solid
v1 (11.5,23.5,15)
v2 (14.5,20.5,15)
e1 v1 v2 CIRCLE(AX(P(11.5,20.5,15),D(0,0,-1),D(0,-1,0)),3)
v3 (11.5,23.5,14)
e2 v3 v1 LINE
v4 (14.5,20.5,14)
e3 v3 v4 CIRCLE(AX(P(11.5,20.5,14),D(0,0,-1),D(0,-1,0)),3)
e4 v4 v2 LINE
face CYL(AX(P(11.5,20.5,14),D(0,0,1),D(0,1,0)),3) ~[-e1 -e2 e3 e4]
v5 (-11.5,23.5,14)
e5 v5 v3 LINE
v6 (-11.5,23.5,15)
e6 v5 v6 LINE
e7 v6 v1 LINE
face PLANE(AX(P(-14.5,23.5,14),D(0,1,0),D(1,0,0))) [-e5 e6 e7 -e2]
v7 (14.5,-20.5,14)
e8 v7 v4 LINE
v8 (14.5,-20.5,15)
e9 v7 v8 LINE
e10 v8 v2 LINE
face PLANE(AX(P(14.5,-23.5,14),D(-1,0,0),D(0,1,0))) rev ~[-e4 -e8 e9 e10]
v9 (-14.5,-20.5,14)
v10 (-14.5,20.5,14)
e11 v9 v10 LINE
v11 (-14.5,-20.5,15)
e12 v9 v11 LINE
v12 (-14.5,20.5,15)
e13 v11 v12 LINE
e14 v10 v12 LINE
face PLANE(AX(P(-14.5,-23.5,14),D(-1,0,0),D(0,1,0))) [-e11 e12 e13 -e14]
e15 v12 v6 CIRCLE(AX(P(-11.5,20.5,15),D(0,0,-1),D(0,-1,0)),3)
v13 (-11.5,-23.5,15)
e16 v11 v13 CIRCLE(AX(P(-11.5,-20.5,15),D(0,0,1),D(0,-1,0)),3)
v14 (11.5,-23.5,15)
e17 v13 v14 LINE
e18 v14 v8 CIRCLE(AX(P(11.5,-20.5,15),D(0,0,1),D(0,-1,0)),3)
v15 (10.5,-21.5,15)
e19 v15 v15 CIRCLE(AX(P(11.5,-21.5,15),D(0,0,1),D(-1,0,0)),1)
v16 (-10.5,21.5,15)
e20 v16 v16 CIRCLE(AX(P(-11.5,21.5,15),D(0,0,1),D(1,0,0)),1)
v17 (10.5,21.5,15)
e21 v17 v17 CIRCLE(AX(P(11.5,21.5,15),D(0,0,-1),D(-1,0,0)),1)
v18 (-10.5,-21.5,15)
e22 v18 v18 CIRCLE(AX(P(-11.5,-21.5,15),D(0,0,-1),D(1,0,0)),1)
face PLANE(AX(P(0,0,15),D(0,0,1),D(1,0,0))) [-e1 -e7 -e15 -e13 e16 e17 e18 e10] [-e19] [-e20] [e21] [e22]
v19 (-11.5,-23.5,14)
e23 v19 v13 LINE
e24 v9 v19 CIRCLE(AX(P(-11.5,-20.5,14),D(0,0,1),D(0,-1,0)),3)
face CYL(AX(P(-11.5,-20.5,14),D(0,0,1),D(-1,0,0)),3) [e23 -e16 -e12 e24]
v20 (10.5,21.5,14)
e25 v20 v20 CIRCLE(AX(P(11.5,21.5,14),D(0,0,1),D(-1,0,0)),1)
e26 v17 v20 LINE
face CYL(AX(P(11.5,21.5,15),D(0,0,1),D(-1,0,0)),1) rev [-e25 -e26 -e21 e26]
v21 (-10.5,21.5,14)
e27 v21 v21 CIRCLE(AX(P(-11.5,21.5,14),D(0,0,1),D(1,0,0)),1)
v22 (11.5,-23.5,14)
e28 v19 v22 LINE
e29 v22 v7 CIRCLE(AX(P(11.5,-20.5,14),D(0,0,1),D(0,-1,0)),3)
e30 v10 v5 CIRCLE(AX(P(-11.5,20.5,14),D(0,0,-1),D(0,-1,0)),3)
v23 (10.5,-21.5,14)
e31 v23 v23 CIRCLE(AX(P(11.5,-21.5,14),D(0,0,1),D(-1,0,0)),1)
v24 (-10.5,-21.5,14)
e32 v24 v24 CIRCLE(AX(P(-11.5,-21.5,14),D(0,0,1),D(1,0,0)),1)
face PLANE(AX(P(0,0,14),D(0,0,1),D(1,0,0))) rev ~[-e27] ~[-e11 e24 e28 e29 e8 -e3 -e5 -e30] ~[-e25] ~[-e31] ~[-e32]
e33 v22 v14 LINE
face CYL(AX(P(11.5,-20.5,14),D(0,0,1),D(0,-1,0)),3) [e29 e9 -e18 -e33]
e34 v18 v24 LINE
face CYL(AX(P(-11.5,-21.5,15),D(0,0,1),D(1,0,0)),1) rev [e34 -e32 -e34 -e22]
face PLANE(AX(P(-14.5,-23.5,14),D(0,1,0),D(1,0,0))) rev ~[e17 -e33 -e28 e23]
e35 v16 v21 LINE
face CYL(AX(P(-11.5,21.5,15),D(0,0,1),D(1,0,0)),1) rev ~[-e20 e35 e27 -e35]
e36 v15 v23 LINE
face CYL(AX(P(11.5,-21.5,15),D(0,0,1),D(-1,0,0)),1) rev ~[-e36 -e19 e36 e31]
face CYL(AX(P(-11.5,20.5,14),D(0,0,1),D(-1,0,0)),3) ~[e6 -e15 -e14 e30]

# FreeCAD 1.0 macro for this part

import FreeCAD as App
import Part
import Sketcher

V = App.Vector
Q = App.Units.Quantity


def edges_at(feature, points):
    """Names of the edges that pass closest to the given points."""
    edges = feature.Shape.Edges
    near = lambda p: min(range(len(edges)), key=lambda i: edges[i].distToShape(Part.Vertex(*p))[0])
    return sorted({f"Edge{near(p) + 1}" for p in points})

doc = App.newDocument("Part")
body = doc.addObject("PartDesign::Body", "Body")

# Sketch on XY plane
sketch1 = body.newObject("Sketcher::SketchObject", "Sketch")
sketch1.AttachmentSupport = (doc.getObject("XY_Plane"), [""])
sketch1.MapMode = "FlatFace"
sketch1.addGeometry(Part.LineSegment(V(-14, 24, 0), V(-14, -24, 0)), False)
sketch1.addGeometry(Part.LineSegment(V(-14, -24, 0), V(14, -24, 0)), False)
sketch1.addGeometry(Part.LineSegment(V(14, -24, 0), V(14, 24, 0)), False)
sketch1.addGeometry(Part.LineSegment(V(14, 24, 0), V(-14, 24, 0)), False)
sketch1.addConstraint(Sketcher.Constraint("Coincident", 0, 2, 1, 1))
sketch1.addConstraint(Sketcher.Constraint("Coincident", 1, 2, 2, 1))
sketch1.addConstraint(Sketcher.Constraint("Coincident", 2, 2, 3, 1))
sketch1.addConstraint(Sketcher.Constraint("Coincident", 3, 2, 0, 1))
sketch1.addConstraint(Sketcher.Constraint("Vertical", 0))
sketch1.addConstraint(Sketcher.Constraint("Horizontal", 1))
sketch1.addConstraint(Sketcher.Constraint("Vertical", 2))
sketch1.addConstraint(Sketcher.Constraint("Horizontal", 3))
sketch1.addConstraint(Sketcher.Constraint("Symmetric", 0, 2, 2, 2, -1, 1))
sketch1.addConstraint(Sketcher.Constraint("DistanceX", 1, 1, 1, 2, Q("29 mm")))
sketch1.addConstraint(Sketcher.Constraint("DistanceY", 0, 2, 0, 1, Q("47 mm")))
pad1 = body.newObject("PartDesign::Pad", "Pad")
pad1.Profile = sketch1
pad1.Length = 1

# Sketch on XY plane
sketch2 = body.newObject("Sketcher::SketchObject", "Sketch001")
sketch2.AttachmentSupport = (doc.getObject("XY_Plane"), [""])
sketch2.MapMode = "FlatFace"
sketch2.AttachmentOffset = App.Placement(V(0, 0, 1), App.Rotation())
sketch2.addGeometry(Part.Circle(V(-11.5, 21.5, 0), V(0, 0, 1), 1), False)
sketch2.addConstraint(Sketcher.Constraint("Diameter", 0, Q("2 mm")))
sketch2.addConstraint(Sketcher.Constraint("DistanceX", 0, 3, -1, 1, Q("11.5 mm")))
sketch2.addConstraint(Sketcher.Constraint("DistanceY", -1, 1, 0, 3, Q("21.5 mm")))
pocket1 = body.newObject("PartDesign::Pocket", "Pocket")
pocket1.Profile = sketch2
pocket1.Type = "ThroughAll"

# Sketch on XY plane
sketch3 = body.newObject("Sketcher::SketchObject", "Sketch002")
sketch3.AttachmentSupport = (doc.getObject("XY_Plane"), [""])
sketch3.MapMode = "FlatFace"
sketch3.AttachmentOffset = App.Placement(V(0, 0, 1), App.Rotation())
sketch3.addGeometry(Part.Circle(V(11.5, 21.5, 0), V(0, 0, 1), 1), False)
sketch3.addConstraint(Sketcher.Constraint("Diameter", 0, Q("2 mm")))
sketch3.addConstraint(Sketcher.Constraint("DistanceX", -1, 1, 0, 3, Q("11.5 mm")))
sketch3.addConstraint(Sketcher.Constraint("DistanceY", -1, 1, 0, 3, Q("21.5 mm")))
pocket2 = body.newObject("PartDesign::Pocket", "Pocket001")
pocket2.Profile = sketch3
pocket2.Type = "ThroughAll"
doc.recompute()

mirrored = body.newObject("PartDesign::Mirrored", "Mirrored")
mirrored.Originals = [pocket1, pocket2]
mirrored.MirrorPlane = (doc.getObject("XZ_Plane"), [""])
body.Tip = mirrored
doc.recompute()

fillet = body.newObject("PartDesign::Fillet", "Fillet")
fillet.Base = (mirrored, edges_at(mirrored, [
    (-14.5, -23.5, 0.5),
    (14.5, -23.5, 0.5),
    (-14.5, 23.5, 0.5),
    (14.5, 23.5, 0.5),
]))
fillet.Radius = 3
body2 = doc.addObject("PartDesign::Body", "Body001")
doc.recompute()

body.Placement = App.Placement(V(0, 0, 14), App.Rotation(V(0, 0, 1), 0))
boolean = body2.newObject("PartDesign::Boolean", "Boolean")
boolean.Type = "Fuse"
boolean.addObjects([body])

doc.recompute()
